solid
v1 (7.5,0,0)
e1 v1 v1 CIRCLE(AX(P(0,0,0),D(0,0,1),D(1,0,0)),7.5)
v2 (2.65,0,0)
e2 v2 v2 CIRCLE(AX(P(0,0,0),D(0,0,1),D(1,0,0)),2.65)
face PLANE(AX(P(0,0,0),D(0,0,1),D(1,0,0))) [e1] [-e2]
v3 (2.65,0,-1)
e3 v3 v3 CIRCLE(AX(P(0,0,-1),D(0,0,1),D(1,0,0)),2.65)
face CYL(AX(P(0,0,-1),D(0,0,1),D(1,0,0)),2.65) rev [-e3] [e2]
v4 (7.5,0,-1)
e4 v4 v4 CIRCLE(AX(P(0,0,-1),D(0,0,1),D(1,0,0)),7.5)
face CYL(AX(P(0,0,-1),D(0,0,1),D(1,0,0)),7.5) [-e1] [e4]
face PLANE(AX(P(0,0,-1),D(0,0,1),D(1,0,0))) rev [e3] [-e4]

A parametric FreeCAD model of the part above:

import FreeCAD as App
import Part
import Sketcher

V = App.Vector
Q = App.Units.Quantity

doc = App.newDocument("Part")
params = doc.addObject("Spreadsheet::Sheet", "Params")
for row, (alias, value) in enumerate([
    ("sketch1_diameter", "15 mm"),
    ("sketch1_diameter2", "5.3 mm"),
    ("pad1_length", "1 mm"),
], start=1):
    params.set(f"A{row}", alias)
    params.set(f"B{row}", "=" + value)
    params.setAlias(f"B{row}", alias)

body = doc.addObject("PartDesign::Body", "Body")

sketch1 = doc.addObject("Sketcher::SketchObject", "Sketch")
body.addObject(sketch1)
sketch1.AttachmentSupport = (doc.XY_Plane, [""])
sketch1.MapMode = "FlatFace"
sketch1.addGeometry([
    Part.Circle(V(0, 0, 0), V(0, 0, 1), 7.5),
    Part.Circle(V(0, 0, 0), V(0, 0, 1), 2.65),
], False)
sketch1.addConstraint([
    Sketcher.Constraint("Coincident", 0, 3, -1, 1),
    Sketcher.Constraint("Coincident", 1, 3, -1, 1),
    Sketcher.Constraint("Diameter", 0, Q("15 mm")),
    Sketcher.Constraint("Diameter", 1, Q("5.3 mm")),
])
sketch1.setExpression("Constraints[2]", "Params.sketch1_diameter")
sketch1.setExpression("Constraints[3]", "Params.sketch1_diameter2")
pad1 = doc.addObject("PartDesign::Pad", "Pad")
body.addObject(pad1)
pad1.Profile = sketch1
pad1.setExpression("Length", "Params.pad1_length")
pad1.Reversed = True

doc.recompute()
